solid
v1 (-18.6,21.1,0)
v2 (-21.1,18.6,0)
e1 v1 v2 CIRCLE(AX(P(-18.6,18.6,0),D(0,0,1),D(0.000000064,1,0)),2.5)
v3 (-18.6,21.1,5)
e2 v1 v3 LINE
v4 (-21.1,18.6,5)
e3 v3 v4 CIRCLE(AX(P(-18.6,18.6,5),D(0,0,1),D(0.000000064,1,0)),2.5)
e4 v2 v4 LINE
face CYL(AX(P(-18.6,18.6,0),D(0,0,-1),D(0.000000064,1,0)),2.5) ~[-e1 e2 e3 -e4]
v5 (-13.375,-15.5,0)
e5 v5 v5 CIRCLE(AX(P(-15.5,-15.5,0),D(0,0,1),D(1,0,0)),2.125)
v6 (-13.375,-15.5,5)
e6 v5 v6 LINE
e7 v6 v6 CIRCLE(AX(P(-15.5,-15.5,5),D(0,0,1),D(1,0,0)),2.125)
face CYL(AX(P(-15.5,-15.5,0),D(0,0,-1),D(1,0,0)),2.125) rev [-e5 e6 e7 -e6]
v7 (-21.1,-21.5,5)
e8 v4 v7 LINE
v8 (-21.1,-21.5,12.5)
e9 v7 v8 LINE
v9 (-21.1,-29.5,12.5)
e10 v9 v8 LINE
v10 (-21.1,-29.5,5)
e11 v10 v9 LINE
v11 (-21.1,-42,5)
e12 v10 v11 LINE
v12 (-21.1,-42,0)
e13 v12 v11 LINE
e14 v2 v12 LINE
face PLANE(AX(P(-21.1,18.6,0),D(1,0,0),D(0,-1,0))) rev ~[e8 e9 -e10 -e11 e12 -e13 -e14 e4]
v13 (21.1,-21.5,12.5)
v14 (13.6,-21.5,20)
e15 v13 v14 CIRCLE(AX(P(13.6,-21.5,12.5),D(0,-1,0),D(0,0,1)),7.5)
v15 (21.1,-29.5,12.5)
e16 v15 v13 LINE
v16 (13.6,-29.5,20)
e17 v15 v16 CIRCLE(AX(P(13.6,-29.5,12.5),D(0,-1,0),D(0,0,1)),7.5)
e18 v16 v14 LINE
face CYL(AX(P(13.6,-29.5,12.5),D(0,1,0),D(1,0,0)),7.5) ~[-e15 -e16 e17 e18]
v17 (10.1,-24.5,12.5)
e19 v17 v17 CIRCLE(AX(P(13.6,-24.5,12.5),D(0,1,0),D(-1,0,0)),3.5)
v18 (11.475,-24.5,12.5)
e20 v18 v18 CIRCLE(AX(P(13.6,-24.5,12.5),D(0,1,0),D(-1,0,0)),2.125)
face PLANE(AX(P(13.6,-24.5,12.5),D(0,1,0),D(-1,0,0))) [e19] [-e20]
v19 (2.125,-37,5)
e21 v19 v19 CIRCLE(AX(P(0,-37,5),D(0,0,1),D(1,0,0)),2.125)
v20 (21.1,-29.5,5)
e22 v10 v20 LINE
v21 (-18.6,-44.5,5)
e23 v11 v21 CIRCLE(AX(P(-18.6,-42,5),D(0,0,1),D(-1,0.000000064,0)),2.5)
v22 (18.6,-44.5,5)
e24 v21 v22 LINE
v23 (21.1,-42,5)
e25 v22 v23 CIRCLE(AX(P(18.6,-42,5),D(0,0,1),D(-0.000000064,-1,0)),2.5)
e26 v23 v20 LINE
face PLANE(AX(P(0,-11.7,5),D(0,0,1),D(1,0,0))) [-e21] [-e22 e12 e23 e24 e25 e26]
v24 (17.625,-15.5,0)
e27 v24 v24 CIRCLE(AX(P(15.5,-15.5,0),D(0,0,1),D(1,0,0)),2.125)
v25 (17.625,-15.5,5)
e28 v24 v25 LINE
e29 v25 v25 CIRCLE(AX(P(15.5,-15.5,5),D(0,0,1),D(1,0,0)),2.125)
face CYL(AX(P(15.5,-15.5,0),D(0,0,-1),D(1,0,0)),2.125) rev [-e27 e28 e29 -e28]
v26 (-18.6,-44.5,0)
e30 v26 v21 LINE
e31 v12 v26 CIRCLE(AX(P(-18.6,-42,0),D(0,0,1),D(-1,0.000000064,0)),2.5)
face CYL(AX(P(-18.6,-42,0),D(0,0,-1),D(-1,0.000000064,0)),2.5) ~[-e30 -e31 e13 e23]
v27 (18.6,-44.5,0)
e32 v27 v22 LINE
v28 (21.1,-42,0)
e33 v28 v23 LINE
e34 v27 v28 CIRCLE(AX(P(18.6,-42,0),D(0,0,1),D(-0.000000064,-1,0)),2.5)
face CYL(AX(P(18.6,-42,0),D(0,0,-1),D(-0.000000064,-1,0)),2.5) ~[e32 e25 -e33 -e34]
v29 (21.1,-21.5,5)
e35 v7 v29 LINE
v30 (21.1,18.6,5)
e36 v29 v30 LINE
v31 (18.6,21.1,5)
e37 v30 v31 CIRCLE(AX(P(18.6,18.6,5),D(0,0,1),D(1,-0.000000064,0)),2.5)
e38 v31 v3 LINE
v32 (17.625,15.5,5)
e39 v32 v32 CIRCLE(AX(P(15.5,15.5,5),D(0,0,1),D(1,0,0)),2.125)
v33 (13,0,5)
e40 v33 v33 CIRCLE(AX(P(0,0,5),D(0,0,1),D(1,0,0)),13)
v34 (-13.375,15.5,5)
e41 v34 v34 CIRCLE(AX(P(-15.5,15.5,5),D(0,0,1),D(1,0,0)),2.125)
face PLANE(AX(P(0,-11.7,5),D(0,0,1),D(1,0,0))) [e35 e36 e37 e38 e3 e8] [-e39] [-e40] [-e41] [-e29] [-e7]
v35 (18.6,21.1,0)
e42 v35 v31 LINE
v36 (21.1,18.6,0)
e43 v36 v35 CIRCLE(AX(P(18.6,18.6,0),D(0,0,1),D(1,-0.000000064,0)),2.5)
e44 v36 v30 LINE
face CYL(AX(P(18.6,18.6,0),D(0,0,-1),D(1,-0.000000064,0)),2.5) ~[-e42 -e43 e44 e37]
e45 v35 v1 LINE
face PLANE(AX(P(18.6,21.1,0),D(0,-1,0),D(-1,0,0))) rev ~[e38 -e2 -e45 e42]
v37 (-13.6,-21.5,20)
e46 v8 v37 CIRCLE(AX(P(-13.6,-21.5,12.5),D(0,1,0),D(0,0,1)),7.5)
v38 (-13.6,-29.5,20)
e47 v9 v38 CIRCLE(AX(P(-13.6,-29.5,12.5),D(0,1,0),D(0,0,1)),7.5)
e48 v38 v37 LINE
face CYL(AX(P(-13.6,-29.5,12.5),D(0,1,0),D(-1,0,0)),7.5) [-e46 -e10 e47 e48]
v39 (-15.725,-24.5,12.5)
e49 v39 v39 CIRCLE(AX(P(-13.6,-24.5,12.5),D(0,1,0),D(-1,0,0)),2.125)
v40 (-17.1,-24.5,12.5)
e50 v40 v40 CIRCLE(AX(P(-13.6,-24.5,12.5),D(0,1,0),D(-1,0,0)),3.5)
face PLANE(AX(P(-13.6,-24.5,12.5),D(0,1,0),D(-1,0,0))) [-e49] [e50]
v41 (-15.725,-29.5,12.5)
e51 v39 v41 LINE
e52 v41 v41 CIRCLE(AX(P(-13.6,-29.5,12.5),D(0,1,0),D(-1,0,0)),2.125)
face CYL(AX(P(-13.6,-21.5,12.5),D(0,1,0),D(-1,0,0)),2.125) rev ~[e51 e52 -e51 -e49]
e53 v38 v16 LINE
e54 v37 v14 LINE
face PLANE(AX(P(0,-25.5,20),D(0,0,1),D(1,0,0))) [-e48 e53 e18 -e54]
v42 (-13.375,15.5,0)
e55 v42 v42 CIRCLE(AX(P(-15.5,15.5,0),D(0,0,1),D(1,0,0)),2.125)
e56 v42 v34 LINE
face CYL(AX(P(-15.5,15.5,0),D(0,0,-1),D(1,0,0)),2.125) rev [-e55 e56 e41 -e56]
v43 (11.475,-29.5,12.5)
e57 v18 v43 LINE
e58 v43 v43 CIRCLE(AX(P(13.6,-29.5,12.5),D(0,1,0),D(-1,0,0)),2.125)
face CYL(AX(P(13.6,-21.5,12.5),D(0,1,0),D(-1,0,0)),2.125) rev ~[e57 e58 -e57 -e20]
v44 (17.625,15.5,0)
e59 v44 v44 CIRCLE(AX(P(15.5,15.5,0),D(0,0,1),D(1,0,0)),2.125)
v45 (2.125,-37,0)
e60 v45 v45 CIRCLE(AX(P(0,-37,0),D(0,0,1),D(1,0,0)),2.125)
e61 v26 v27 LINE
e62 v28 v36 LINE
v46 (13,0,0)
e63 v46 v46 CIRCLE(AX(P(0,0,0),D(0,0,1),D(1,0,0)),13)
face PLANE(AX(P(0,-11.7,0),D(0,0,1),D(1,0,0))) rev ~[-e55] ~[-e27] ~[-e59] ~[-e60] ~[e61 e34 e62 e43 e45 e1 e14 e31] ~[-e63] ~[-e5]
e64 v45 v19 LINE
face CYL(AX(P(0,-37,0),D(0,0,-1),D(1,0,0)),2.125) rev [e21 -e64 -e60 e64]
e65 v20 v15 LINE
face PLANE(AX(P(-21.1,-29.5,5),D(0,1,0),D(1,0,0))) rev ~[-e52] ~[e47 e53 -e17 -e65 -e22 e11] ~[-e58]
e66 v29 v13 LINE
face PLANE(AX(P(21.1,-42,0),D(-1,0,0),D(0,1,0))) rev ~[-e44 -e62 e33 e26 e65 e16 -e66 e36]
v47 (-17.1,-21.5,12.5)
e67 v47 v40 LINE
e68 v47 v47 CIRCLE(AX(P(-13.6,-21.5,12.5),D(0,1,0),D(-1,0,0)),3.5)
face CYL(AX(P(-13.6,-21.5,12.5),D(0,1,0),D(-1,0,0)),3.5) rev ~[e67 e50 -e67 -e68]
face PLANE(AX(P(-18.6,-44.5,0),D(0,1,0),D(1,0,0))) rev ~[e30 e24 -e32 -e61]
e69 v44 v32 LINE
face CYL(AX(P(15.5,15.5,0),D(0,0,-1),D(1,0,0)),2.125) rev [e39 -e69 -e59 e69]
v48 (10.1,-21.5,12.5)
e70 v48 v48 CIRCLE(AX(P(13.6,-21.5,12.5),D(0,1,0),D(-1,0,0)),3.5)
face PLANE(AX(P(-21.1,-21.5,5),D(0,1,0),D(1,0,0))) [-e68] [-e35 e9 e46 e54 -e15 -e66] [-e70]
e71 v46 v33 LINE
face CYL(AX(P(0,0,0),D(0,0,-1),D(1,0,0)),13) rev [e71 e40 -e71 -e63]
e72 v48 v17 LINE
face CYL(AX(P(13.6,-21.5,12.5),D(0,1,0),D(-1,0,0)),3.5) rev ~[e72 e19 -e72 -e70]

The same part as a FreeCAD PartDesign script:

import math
import FreeCAD as App
import Part
import Sketcher
from FreeCAD import Vector
Q = App.Units.Quantity


def edges_at(feature, points):
    """Names of the edges that pass closest to the given points."""
    edges = feature.Shape.Edges
    near = lambda p: min(range(len(edges)), key=lambda i: edges[i].distToShape(Part.Vertex(*p))[0])
    return sorted({f"Edge{near(p) + 1}" for p in points})

doc = App.newDocument("Part")
body = doc.addObject("PartDesign::Body", "Body")

sketch1 = body.newObject("Sketcher::SketchObject", "Sketch")
sketch1.AttachmentSupport = (doc.getObject("XY_Plane"), [""])
sketch1.MapMode = "FlatFace"
sketch1.addGeometry([
    Part.LineSegment(Vector(18.6, 21.1, 0), Vector(-18.6, 21.1, 0)),
    Part.ArcOfCircle(Part.Circle(Vector(-18.6, 18.6, 0), Vector(0, 0, 1), 2.5), math.radians(89.999996), math.radians(180.000004)),
    Part.LineSegment(Vector(-21.1, 18.6, 0), Vector(-21.1, -42, 0)),
    Part.ArcOfCircle(Part.Circle(Vector(-18.6, -42, 0), Vector(0, 0, 1), 2.5), math.radians(179.999996), math.radians(270.000004)),
    Part.LineSegment(Vector(-18.6, -44.5, 0), Vector(18.6, -44.5, 0)),
    Part.ArcOfCircle(Part.Circle(Vector(18.6, -42, 0), Vector(0, 0, 1), 2.5), math.radians(-90.000004), math.radians(0.000004)),
    Part.LineSegment(Vector(21.1, -42, 0), Vector(21.1, 18.6, 0)),
    Part.ArcOfCircle(Part.Circle(Vector(18.6, 18.6, 0), Vector(0, 0, 1), 2.5), math.radians(-0.000004), math.radians(90.000004)),
    Part.Circle(Vector(-15.5, -15.5, 0), Vector(0, 0, 1), 2.125),
    Part.Circle(Vector(0, -37, 0), Vector(0, 0, 1), 2.125),
    Part.Circle(Vector(15.5, -15.5, 0), Vector(0, 0, 1), 2.125),
    Part.Circle(Vector(-15.5, 15.5, 0), Vector(0, 0, 1), 2.125),
    Part.Circle(Vector(0, 0, 0), Vector(0, 0, 1), 13),
    Part.Circle(Vector(15.5, 15.5, 0), Vector(0, 0, 1), 2.125),
], False)
sketch1.addConstraint([
    Sketcher.Constraint("Tangent", 0, 2, 1, 1),
    Sketcher.Constraint("Tangent", 1, 2, 2, 1),
    Sketcher.Constraint("Tangent", 2, 2, 3, 1),
    Sketcher.Constraint("Tangent", 3, 2, 4, 1),
    Sketcher.Constraint("Tangent", 4, 2, 5, 1),
    Sketcher.Constraint("Tangent", 5, 2, 6, 1),
    Sketcher.Constraint("Tangent", 6, 2, 7, 1),
    Sketcher.Constraint("Tangent", 7, 2, 0, 1),
    Sketcher.Constraint("Horizontal", 0),
    Sketcher.Constraint("Vertical", 2),
    Sketcher.Constraint("Horizontal", 4),
    Sketcher.Constraint("Vertical", 6),
    Sketcher.Constraint("Coincident", 12, 3, -1, 1),
    Sketcher.Constraint("Equal", 1, 3),
    Sketcher.Constraint("Equal", 3, 5),
    Sketcher.Constraint("Equal", 5, 7),
    Sketcher.Constraint("Equal", 8, 9),
    Sketcher.Constraint("Equal", 9, 10),
    Sketcher.Constraint("Equal", 10, 11),
    Sketcher.Constraint("Equal", 11, 13),
    Sketcher.Constraint("Symmetric", 10, 3, 11, 3, -1, 1),
    Sketcher.Constraint("Symmetric", 8, 3, 13, 3, -1, 1),
    Sketcher.Constraint("Symmetric", 8, 3, 10, 3, -2),
    Sketcher.Constraint("PointOnObject", 9, 3, -2),
    Sketcher.Constraint("Diameter", 12, Q("26 mm")),
    Sketcher.Constraint("Radius", 1, Q("2.5 mm")),
    Sketcher.Constraint("Diameter", 8, Q("4.25 mm")),
    Sketcher.Constraint("DistanceX", 0, 2, 0, 1, Q("37.2 mm")),
    Sketcher.Constraint("DistanceY", 2, 2, 2, 1, Q("60.6 mm")),
    Sketcher.Constraint("DistanceY", 3, 3, -1, 1, Q("42 mm")),
    Sketcher.Constraint("DistanceY", 9, 3, -1, 1, Q("37 mm")),
    Sketcher.Constraint("DistanceX", 8, 3, 10, 3, Q("31 mm")),
    Sketcher.Constraint("DistanceY", 8, 3, 11, 3, Q("31 mm")),
    Sketcher.Constraint("DistanceX", 1, 3, -1, 1, Q("18.6 mm")),
])
pad1 = body.newObject("PartDesign::Pad", "Pad")
pad1.Profile = sketch1
pad1.Length = 5

sketch2 = body.newObject("Sketcher::SketchObject", "Sketch001")
sketch2.AttachmentSupport = (doc.getObject("XY_Plane"), [""])
sketch2.MapMode = "FlatFace"
sketch2.AttachmentOffset = App.Placement(Vector(0, 0, 5), App.Rotation())
sketch2.addGeometry([
    Part.LineSegment(Vector(-21.1, -21.5, 0), Vector(-21.1, -29.5, 0)),
    Part.LineSegment(Vector(-21.1, -29.5, 0), Vector(21.1, -29.5, 0)),
    Part.LineSegment(Vector(21.1, -29.5, 0), Vector(21.1, -21.5, 0)),
    Part.LineSegment(Vector(21.1, -21.5, 0), Vector(-21.1, -21.5, 0)),
], False)
sketch2.addConstraint([
    Sketcher.Constraint("Coincident", 0, 2, 1, 1),
    Sketcher.Constraint("Coincident", 1, 2, 2, 1),
    Sketcher.Constraint("Coincident", 2, 2, 3, 1),
    Sketcher.Constraint("Coincident", 3, 2, 0, 1),
    Sketcher.Constraint("Vertical", 0),
    Sketcher.Constraint("Horizontal", 1),
    Sketcher.Constraint("Vertical", 2),
    Sketcher.Constraint("Horizontal", 3),
    Sketcher.Constraint("DistanceY", 0, 2, 0, 1, Q("8 mm")),
    Sketcher.Constraint("DistanceX", 1, 1, 1, 2, Q("42.2 mm")),
    Sketcher.Constraint("DistanceX", 0, 2, -1, 1, Q("21.1 mm")),
    Sketcher.Constraint("DistanceY", 0, 2, -1, 1, Q("29.5 mm")),
])
pad2 = body.newObject("PartDesign::Pad", "Pad001")
pad2.Profile = sketch2
pad2.Length = 15
doc.recompute()

fillet = body.newObject("PartDesign::Fillet", "Fillet")
fillet.Base = (pad2, edges_at(pad2, [(-21.1, -25.5, 20), (21.1, -25.5, 20)]))
fillet.Radius = 7.5

sketch3 = body.newObject("Sketcher::SketchObject", "Sketch002")
sketch3.AttachmentSupport = (doc.getObject("XZ_Plane"), [""])
sketch3.MapMode = "FlatFace"
sketch3.AttachmentOffset = App.Placement(Vector(0, 0, 21.5), App.Rotation())
sketch3.addGeometry([
    Part.Circle(Vector(13.6, 12.5, 0), Vector(0, 0, 1), 2.125),
    Part.Circle(Vector(-13.6, 12.5, 0), Vector(0, 0, 1), 2.125),
], False)
sketch3.addConstraint([
    Sketcher.Constraint("Equal", 0, 1),
    Sketcher.Constraint("Symmetric", 0, 3, 1, 3, -2),
    Sketcher.Constraint("Diameter", 0, Q("4.25 mm")),
    Sketcher.Constraint("DistanceX", -1, 1, 0, 3, Q("13.6 mm")),
    Sketcher.Constraint("DistanceY", -1, 1, 0, 3, Q("12.5 mm")),
])
pocket1 = body.newObject("PartDesign::Pocket", "Pocket")
pocket1.Profile = sketch3
pocket1.Type = "ThroughAll"
pocket1.Reversed = True

sketch4 = body.newObject("Sketcher::SketchObject", "Sketch003")
sketch4.AttachmentSupport = (doc.getObject("XZ_Plane"), [""])
sketch4.MapMode = "FlatFace"
sketch4.AttachmentOffset = App.Placement(Vector(0, 0, 21.5), App.Rotation())
sketch4.addGeometry([
    Part.Circle(Vector(13.6, 12.5, 0), Vector(0, 0, 1), 3.5),
    Part.Circle(Vector(-13.6, 12.5, 0), Vector(0, 0, 1), 3.5),
], False)
sketch4.addConstraint([
    Sketcher.Constraint("Equal", 0, 1),
    Sketcher.Constraint("Symmetric", 0, 3, 1, 3, -2),
    Sketcher.Constraint("Diameter", 0, Q("7 mm")),
    Sketcher.Constraint("DistanceX", -1, 1, 0, 3, Q("13.6 mm")),
    Sketcher.Constraint("DistanceY", -1, 1, 0, 3, Q("12.5 mm")),
])
pocket2 = body.newObject("PartDesign::Pocket", "Pocket001")
pocket2.Profile = sketch4
pocket2.Length = 3
pocket2.Reversed = True

doc.recompute()
